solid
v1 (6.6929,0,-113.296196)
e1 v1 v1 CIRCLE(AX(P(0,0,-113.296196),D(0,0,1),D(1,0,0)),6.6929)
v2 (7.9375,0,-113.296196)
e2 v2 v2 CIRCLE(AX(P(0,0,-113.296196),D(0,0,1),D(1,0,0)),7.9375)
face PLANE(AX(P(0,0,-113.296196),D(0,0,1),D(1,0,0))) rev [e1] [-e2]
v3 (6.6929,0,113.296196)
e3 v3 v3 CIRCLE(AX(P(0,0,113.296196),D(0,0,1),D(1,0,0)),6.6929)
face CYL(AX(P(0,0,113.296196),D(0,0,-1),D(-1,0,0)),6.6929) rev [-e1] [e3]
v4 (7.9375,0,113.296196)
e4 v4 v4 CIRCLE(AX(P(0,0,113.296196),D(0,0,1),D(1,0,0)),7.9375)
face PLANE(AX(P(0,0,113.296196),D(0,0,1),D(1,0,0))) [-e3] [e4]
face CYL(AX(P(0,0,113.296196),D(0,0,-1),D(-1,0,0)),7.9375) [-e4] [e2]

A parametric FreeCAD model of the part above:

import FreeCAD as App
import Part
import Sketcher

V = App.Vector
Q = App.Units.Quantity

doc = App.newDocument("Part")
body = doc.addObject("PartDesign::Body", "Body")

sketch1 = body.newObject("Sketcher::SketchObject", "Sketch")
sketch1.AttachmentSupport = (doc.getObject("XY_Plane"), [""])
sketch1.MapMode = "FlatFace"
sketch1.addGeometry([
    Part.Circle(V(0, 0, 0), V(0, 0, 1), 8),
    Part.Circle(V(0, 0, 0), V(0, 0, 1), 7),
], False)
sketch1.addConstraint([
    Sketcher.Constraint("Coincident", 0, 3, -1, 1),
    Sketcher.Constraint("Coincident", 1, 3, -1, 1),
    Sketcher.Constraint("Diameter", 0, Q("0.625 in")),
    Sketcher.Constraint("Diameter", 1, Q("0.527 in")),
])
pad1 = body.newObject("PartDesign::Pad", "Pad")
pad1.Profile = sketch1
pad1.Length = 226.592392
pad1.Midplane = True

doc.recompute()
